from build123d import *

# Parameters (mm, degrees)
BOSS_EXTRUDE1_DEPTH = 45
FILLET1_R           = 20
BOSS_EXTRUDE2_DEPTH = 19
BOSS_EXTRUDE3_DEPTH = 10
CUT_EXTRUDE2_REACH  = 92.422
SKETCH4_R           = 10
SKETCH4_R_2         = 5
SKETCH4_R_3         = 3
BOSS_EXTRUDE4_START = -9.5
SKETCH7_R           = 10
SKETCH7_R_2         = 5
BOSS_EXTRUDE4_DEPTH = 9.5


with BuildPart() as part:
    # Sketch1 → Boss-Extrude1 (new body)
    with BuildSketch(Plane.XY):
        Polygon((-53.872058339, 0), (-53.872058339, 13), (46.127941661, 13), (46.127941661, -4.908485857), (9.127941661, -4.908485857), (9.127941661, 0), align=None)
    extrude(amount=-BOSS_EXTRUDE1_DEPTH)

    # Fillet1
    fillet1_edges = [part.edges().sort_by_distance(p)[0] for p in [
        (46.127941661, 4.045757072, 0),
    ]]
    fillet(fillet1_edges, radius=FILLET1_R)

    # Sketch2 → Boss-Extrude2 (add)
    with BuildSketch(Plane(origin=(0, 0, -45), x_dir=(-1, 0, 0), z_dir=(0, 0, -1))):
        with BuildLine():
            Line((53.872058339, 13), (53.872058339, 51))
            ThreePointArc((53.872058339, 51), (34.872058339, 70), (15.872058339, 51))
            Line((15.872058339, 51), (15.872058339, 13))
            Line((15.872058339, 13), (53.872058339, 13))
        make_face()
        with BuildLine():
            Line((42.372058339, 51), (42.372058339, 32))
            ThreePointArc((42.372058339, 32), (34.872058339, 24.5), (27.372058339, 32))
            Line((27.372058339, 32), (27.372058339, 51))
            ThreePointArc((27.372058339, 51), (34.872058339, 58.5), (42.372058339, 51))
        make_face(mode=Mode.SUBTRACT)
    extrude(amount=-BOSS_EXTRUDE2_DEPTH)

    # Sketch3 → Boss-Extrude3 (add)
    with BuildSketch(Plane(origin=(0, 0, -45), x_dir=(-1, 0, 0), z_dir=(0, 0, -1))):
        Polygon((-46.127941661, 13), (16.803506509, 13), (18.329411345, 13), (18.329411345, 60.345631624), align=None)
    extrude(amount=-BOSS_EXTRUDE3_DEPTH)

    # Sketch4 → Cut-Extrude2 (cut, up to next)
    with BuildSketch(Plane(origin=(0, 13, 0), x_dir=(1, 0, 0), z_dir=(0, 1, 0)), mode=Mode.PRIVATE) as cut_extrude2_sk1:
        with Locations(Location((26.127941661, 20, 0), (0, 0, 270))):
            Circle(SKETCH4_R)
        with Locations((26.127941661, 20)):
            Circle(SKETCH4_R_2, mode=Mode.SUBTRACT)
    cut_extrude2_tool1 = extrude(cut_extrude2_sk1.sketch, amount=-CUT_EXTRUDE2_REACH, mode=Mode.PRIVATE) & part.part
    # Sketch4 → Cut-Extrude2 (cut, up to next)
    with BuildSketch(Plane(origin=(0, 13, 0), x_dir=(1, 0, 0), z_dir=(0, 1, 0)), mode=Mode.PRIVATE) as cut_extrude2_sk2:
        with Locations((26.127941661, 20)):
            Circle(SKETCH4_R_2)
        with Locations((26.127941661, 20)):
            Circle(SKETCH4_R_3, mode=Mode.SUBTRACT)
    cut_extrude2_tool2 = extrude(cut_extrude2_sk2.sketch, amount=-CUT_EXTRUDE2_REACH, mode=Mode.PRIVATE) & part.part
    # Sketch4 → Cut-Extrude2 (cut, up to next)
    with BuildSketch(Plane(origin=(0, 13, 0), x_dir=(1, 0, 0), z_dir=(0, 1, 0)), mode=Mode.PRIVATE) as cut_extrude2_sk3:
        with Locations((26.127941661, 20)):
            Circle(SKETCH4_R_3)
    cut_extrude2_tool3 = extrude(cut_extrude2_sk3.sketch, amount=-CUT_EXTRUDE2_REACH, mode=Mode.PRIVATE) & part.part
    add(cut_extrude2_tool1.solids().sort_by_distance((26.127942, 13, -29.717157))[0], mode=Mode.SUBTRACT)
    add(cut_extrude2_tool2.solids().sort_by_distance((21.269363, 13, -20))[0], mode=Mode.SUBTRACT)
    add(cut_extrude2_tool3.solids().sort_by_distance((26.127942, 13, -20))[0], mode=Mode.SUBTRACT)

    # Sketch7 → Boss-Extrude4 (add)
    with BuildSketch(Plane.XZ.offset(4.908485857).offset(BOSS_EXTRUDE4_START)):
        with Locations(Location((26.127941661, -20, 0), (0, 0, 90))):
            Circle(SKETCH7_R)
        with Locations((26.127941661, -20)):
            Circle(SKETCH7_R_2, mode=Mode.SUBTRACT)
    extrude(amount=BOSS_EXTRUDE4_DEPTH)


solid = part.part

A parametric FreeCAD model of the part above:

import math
import FreeCAD as App
import Part
import Sketcher
from FreeCAD import Vector


def edges_at(feature, points):
    """Names of the edges that pass closest to the given points."""
    edges = feature.Shape.Edges
    near = lambda p: min(range(len(edges)), key=lambda i: edges[i].distToShape(Part.Vertex(*p))[0])
    return sorted({f"Edge{near(p) + 1}" for p in points})


def add_polygon(sketch, points):
    """Adds a closed chain of lines whose ends are joined by coincident constraints."""
    first, n = sketch.GeometryCount, len(points)
    for a, b in zip(points, points[1:] + points[:1]):
        sketch.addGeometry(Part.LineSegment(App.Vector(*a, 0), App.Vector(*b, 0)), False)
    for i in range(n):
        sketch.addConstraint(Sketcher.Constraint("Coincident", first + i, 2, first + (i + 1) % n, 1))

doc = App.newDocument("Part")
body = doc.addObject("PartDesign::Body", "Body")
body.AllowCompound = True

sketch1 = body.newObject("Sketcher::SketchObject", "Sketch")
sketch1.AttachmentSupport = (doc.getObject("XY_Plane"), [""])
sketch1.MapMode = "FlatFace"
add_polygon(sketch1, [(-53.9, 13), (-53.9, 0), (9.1, 0), (9.1, -4.9), (46.1, -4.9), (46.1, 13)])
sketch1.addConstraint(Sketcher.Constraint("Vertical", 0))
sketch1.addConstraint(Sketcher.Constraint("Horizontal", 1))
sketch1.addConstraint(Sketcher.Constraint("Vertical", 2))
sketch1.addConstraint(Sketcher.Constraint("Horizontal", 3))
sketch1.addConstraint(Sketcher.Constraint("Vertical", 4))
sketch1.addConstraint(Sketcher.Constraint("Horizontal", 5))
sketch1.addConstraint(Sketcher.Constraint("PointOnObject", 0, 2, -1))
sketch1.addConstraint(Sketcher.Constraint("DistanceX", 1, 1, 1, 2, 63.0))
sketch1.addConstraint(Sketcher.Constraint("DistanceX", 3, 1, 3, 2, 37.0))
sketch1.addConstraint(Sketcher.Constraint("DistanceY", 0, 2, 0, 1, 13.0))
sketch1.addConstraint(Sketcher.Constraint("DistanceY", 2, 2, 2, 1, 4.908486))
sketch1.addConstraint(Sketcher.Constraint("DistanceX", 0, 2, -1, 1, 53.872058))
pad1 = body.newObject("PartDesign::Pad", "Pad")
pad1.Profile = sketch1
pad1.Length = 45
pad1.Reversed = True
doc.recompute()

fillet = body.newObject("PartDesign::Fillet", "Fillet")
fillet.Base = (pad1, edges_at(pad1, [(46.128, 4.046, 0)]))
fillet.Radius = 20

sketch2 = body.newObject("Sketcher::SketchObject", "Sketch001")
sketch2.AttachmentSupport = (doc.getObject("XY_Plane"), [""])
sketch2.MapMode = "FlatFace"
sketch2.AttachmentOffset = App.Placement(Vector(0, 0, -45), App.Rotation())
sketch2.addGeometry(Part.LineSegment(Vector(-54, 13, 0), Vector(-54, 51, 0)), False)
sketch2.addGeometry(Part.ArcOfCircle(Part.Circle(Vector(-35, 51, 0), Vector(0, 0, 1), 19), math.radians(0), math.radians(180)), False)
sketch2.addGeometry(Part.LineSegment(Vector(-16, 51, 0), Vector(-16, 13, 0)), False)
sketch2.addGeometry(Part.LineSegment(Vector(-16, 13, 0), Vector(-54, 13, 0)), False)
sketch2.addGeometry(Part.ArcOfCircle(Part.Circle(Vector(-35, 51, 0), Vector(0, 0, 1), 8), math.radians(0), math.radians(180)), False)
sketch2.addGeometry(Part.LineSegment(Vector(-42, 51, 0), Vector(-42, 32, 0)), False)
sketch2.addGeometry(Part.ArcOfCircle(Part.Circle(Vector(-35, 32, 0), Vector(0, 0, 1), 8), math.radians(180), math.radians(360)), False)
sketch2.addGeometry(Part.LineSegment(Vector(-27, 32, 0), Vector(-27, 51, 0)), False)
sketch2.addConstraint(Sketcher.Constraint("Tangent", 0, 2, 1, 2))
sketch2.addConstraint(Sketcher.Constraint("Tangent", 1, 1, 2, 1))
sketch2.addConstraint(Sketcher.Constraint("Coincident", 2, 2, 3, 1))
sketch2.addConstraint(Sketcher.Constraint("Coincident", 3, 2, 0, 1))
sketch2.addConstraint(Sketcher.Constraint("Tangent", 4, 2, 5, 1))
sketch2.addConstraint(Sketcher.Constraint("Tangent", 5, 2, 6, 1))
sketch2.addConstraint(Sketcher.Constraint("Tangent", 6, 2, 7, 1))
sketch2.addConstraint(Sketcher.Constraint("Tangent", 7, 2, 4, 1))
sketch2.addConstraint(Sketcher.Constraint("Vertical", 0))
sketch2.addConstraint(Sketcher.Constraint("Vertical", 2))
sketch2.addConstraint(Sketcher.Constraint("Horizontal", 3))
sketch2.addConstraint(Sketcher.Constraint("Vertical", 5))
sketch2.addConstraint(Sketcher.Constraint("Vertical", 7))
sketch2.addConstraint(Sketcher.Constraint("Coincident", 4, 3, 1, 3))
sketch2.addConstraint(Sketcher.Constraint("Equal", 3, 0))
sketch2.addConstraint(Sketcher.Constraint("Radius", 1, 19.0))
sketch2.addConstraint(Sketcher.Constraint("Radius", 4, 7.5))
sketch2.addConstraint(Sketcher.Constraint("DistanceY", 5, 2, 5, 1, 19.0))
sketch2.addConstraint(Sketcher.Constraint("DistanceY", -1, 1, 1, 3, 51.0))
sketch2.addConstraint(Sketcher.Constraint("DistanceX", 1, 3, -1, 1, 34.872058))
pad2 = body.newObject("PartDesign::Pad", "Pad001")
pad2.Profile = sketch2
pad2.Length = 19

sketch3 = body.newObject("Sketcher::SketchObject", "Sketch002")
sketch3.AttachmentSupport = (doc.getObject("XY_Plane"), [""])
sketch3.MapMode = "FlatFace"
sketch3.AttachmentOffset = App.Placement(Vector(0, 0, -45), App.Rotation())
add_polygon(sketch3, [(46, 13), (-18, 13), (-18, 60)])
sketch3.addConstraint(Sketcher.Constraint("Horizontal", 0))
sketch3.addConstraint(Sketcher.Constraint("Vertical", 1))
sketch3.addConstraint(Sketcher.Constraint("DistanceY", -1, 1, 0, 2, 13.0))
sketch3.addConstraint(Sketcher.Constraint("DistanceY", 1, 1, 1, 2, 47.345632))
sketch3.addConstraint(Sketcher.Constraint("Distance", 2, 79.977242))
sketch3.addConstraint(Sketcher.Constraint("DistanceX", 0, 2, -1, 1, 18.329411))
pad3 = body.newObject("PartDesign::Pad", "Pad002")
pad3.Profile = sketch3
pad3.Length = 10

sketch4 = body.newObject("Sketcher::SketchObject", "Sketch003")
sketch4.AttachmentSupport = (doc.getObject("XZ_Plane"), [""])
sketch4.MapMode = "FlatFace"
sketch4.AttachmentOffset = App.Placement(Vector(0, 0, -13), App.Rotation())
sketch4.addGeometry(Part.Circle(Vector(26, -20, 0), Vector(0, 0, 1), 10), False)
sketch4.addGeometry(Part.Circle(Vector(26, -20, 0), Vector(0, 0, 1), 5), False)
sketch4.addConstraint(Sketcher.Constraint("Coincident", 1, 3, 0, 3))
sketch4.addConstraint(Sketcher.Constraint("Diameter", 0, 20.0))
sketch4.addConstraint(Sketcher.Constraint("Diameter", 1, 10.0))
sketch4.addConstraint(Sketcher.Constraint("DistanceY", 0, 3, -1, 1, 20.0))
sketch4.addConstraint(Sketcher.Constraint("DistanceX", -1, 1, 0, 3, 26.127942))
pocket1 = body.newObject("PartDesign::Pocket", "Pocket")
pocket1.Profile = sketch4
pocket1.Type = "UpToFirst"
pocket1.Reversed = True

sketch5 = body.newObject("Sketcher::SketchObject", "Sketch004")
sketch5.AttachmentSupport = (doc.getObject("XZ_Plane"), [""])
sketch5.MapMode = "FlatFace"
sketch5.AttachmentOffset = App.Placement(Vector(0, 0, -13), App.Rotation())
sketch5.addGeometry(Part.Circle(Vector(26.1, -20, 0), Vector(0, 0, 1), 5), False)
sketch5.addGeometry(Part.Circle(Vector(26.1, -20, 0), Vector(0, 0, 1), 3), False)
sketch5.addConstraint(Sketcher.Constraint("Coincident", 1, 3, 0, 3))
sketch5.addConstraint(Sketcher.Constraint("Diameter", 0, 10.0))
sketch5.addConstraint(Sketcher.Constraint("Diameter", 1, 6.0))
sketch5.addConstraint(Sketcher.Constraint("DistanceY", 0, 3, -1, 1, 20.0))
sketch5.addConstraint(Sketcher.Constraint("DistanceX", -1, 1, 0, 3, 26.127942))
pocket2 = body.newObject("PartDesign::Pocket", "Pocket001")
pocket2.Profile = sketch5
pocket2.Type = "UpToFirst"
pocket2.Reversed = True

sketch6 = body.newObject("Sketcher::SketchObject", "Sketch005")
sketch6.AttachmentSupport = (doc.getObject("XZ_Plane"), [""])
sketch6.MapMode = "FlatFace"
sketch6.AttachmentOffset = App.Placement(Vector(0, 0, -13), App.Rotation())
sketch6.addGeometry(Part.Circle(Vector(26.1, -20, 0), Vector(0, 0, 1), 3), False)
sketch6.addConstraint(Sketcher.Constraint("Diameter", 0, 6.0))
sketch6.addConstraint(Sketcher.Constraint("DistanceY", 0, 3, -1, 1, 20.0))
sketch6.addConstraint(Sketcher.Constraint("DistanceX", -1, 1, 0, 3, 26.127942))
pocket3 = body.newObject("PartDesign::Pocket", "Pocket002")
pocket3.Profile = sketch6
pocket3.Type = "UpToFirst"
pocket3.Reversed = True

sketch7 = body.newObject("Sketcher::SketchObject", "Sketch006")
sketch7.AttachmentSupport = (doc.getObject("XZ_Plane"), [""])
sketch7.MapMode = "FlatFace"
sketch7.AttachmentOffset = App.Placement(Vector(0, 0, -4.591514), App.Rotation())
sketch7.addGeometry(Part.Circle(Vector(26, -20, 0), Vector(0, 0, 1), 10), False)
sketch7.addGeometry(Part.Circle(Vector(26, -20, 0), Vector(0, 0, 1), 5), False)
sketch7.addConstraint(Sketcher.Constraint("Coincident", 1, 3, 0, 3))
sketch7.addConstraint(Sketcher.Constraint("Diameter", 0, 20.0))
sketch7.addConstraint(Sketcher.Constraint("Diameter", 1, 10.0))
sketch7.addConstraint(Sketcher.Constraint("DistanceY", 0, 3, -1, 1, 20.0))
sketch7.addConstraint(Sketcher.Constraint("DistanceX", -1, 1, 0, 3, 26.127942))
pad4 = body.newObject("PartDesign::Pad", "Pad003")
pad4.Profile = sketch7
pad4.Length = 9.5

doc.recompute()
